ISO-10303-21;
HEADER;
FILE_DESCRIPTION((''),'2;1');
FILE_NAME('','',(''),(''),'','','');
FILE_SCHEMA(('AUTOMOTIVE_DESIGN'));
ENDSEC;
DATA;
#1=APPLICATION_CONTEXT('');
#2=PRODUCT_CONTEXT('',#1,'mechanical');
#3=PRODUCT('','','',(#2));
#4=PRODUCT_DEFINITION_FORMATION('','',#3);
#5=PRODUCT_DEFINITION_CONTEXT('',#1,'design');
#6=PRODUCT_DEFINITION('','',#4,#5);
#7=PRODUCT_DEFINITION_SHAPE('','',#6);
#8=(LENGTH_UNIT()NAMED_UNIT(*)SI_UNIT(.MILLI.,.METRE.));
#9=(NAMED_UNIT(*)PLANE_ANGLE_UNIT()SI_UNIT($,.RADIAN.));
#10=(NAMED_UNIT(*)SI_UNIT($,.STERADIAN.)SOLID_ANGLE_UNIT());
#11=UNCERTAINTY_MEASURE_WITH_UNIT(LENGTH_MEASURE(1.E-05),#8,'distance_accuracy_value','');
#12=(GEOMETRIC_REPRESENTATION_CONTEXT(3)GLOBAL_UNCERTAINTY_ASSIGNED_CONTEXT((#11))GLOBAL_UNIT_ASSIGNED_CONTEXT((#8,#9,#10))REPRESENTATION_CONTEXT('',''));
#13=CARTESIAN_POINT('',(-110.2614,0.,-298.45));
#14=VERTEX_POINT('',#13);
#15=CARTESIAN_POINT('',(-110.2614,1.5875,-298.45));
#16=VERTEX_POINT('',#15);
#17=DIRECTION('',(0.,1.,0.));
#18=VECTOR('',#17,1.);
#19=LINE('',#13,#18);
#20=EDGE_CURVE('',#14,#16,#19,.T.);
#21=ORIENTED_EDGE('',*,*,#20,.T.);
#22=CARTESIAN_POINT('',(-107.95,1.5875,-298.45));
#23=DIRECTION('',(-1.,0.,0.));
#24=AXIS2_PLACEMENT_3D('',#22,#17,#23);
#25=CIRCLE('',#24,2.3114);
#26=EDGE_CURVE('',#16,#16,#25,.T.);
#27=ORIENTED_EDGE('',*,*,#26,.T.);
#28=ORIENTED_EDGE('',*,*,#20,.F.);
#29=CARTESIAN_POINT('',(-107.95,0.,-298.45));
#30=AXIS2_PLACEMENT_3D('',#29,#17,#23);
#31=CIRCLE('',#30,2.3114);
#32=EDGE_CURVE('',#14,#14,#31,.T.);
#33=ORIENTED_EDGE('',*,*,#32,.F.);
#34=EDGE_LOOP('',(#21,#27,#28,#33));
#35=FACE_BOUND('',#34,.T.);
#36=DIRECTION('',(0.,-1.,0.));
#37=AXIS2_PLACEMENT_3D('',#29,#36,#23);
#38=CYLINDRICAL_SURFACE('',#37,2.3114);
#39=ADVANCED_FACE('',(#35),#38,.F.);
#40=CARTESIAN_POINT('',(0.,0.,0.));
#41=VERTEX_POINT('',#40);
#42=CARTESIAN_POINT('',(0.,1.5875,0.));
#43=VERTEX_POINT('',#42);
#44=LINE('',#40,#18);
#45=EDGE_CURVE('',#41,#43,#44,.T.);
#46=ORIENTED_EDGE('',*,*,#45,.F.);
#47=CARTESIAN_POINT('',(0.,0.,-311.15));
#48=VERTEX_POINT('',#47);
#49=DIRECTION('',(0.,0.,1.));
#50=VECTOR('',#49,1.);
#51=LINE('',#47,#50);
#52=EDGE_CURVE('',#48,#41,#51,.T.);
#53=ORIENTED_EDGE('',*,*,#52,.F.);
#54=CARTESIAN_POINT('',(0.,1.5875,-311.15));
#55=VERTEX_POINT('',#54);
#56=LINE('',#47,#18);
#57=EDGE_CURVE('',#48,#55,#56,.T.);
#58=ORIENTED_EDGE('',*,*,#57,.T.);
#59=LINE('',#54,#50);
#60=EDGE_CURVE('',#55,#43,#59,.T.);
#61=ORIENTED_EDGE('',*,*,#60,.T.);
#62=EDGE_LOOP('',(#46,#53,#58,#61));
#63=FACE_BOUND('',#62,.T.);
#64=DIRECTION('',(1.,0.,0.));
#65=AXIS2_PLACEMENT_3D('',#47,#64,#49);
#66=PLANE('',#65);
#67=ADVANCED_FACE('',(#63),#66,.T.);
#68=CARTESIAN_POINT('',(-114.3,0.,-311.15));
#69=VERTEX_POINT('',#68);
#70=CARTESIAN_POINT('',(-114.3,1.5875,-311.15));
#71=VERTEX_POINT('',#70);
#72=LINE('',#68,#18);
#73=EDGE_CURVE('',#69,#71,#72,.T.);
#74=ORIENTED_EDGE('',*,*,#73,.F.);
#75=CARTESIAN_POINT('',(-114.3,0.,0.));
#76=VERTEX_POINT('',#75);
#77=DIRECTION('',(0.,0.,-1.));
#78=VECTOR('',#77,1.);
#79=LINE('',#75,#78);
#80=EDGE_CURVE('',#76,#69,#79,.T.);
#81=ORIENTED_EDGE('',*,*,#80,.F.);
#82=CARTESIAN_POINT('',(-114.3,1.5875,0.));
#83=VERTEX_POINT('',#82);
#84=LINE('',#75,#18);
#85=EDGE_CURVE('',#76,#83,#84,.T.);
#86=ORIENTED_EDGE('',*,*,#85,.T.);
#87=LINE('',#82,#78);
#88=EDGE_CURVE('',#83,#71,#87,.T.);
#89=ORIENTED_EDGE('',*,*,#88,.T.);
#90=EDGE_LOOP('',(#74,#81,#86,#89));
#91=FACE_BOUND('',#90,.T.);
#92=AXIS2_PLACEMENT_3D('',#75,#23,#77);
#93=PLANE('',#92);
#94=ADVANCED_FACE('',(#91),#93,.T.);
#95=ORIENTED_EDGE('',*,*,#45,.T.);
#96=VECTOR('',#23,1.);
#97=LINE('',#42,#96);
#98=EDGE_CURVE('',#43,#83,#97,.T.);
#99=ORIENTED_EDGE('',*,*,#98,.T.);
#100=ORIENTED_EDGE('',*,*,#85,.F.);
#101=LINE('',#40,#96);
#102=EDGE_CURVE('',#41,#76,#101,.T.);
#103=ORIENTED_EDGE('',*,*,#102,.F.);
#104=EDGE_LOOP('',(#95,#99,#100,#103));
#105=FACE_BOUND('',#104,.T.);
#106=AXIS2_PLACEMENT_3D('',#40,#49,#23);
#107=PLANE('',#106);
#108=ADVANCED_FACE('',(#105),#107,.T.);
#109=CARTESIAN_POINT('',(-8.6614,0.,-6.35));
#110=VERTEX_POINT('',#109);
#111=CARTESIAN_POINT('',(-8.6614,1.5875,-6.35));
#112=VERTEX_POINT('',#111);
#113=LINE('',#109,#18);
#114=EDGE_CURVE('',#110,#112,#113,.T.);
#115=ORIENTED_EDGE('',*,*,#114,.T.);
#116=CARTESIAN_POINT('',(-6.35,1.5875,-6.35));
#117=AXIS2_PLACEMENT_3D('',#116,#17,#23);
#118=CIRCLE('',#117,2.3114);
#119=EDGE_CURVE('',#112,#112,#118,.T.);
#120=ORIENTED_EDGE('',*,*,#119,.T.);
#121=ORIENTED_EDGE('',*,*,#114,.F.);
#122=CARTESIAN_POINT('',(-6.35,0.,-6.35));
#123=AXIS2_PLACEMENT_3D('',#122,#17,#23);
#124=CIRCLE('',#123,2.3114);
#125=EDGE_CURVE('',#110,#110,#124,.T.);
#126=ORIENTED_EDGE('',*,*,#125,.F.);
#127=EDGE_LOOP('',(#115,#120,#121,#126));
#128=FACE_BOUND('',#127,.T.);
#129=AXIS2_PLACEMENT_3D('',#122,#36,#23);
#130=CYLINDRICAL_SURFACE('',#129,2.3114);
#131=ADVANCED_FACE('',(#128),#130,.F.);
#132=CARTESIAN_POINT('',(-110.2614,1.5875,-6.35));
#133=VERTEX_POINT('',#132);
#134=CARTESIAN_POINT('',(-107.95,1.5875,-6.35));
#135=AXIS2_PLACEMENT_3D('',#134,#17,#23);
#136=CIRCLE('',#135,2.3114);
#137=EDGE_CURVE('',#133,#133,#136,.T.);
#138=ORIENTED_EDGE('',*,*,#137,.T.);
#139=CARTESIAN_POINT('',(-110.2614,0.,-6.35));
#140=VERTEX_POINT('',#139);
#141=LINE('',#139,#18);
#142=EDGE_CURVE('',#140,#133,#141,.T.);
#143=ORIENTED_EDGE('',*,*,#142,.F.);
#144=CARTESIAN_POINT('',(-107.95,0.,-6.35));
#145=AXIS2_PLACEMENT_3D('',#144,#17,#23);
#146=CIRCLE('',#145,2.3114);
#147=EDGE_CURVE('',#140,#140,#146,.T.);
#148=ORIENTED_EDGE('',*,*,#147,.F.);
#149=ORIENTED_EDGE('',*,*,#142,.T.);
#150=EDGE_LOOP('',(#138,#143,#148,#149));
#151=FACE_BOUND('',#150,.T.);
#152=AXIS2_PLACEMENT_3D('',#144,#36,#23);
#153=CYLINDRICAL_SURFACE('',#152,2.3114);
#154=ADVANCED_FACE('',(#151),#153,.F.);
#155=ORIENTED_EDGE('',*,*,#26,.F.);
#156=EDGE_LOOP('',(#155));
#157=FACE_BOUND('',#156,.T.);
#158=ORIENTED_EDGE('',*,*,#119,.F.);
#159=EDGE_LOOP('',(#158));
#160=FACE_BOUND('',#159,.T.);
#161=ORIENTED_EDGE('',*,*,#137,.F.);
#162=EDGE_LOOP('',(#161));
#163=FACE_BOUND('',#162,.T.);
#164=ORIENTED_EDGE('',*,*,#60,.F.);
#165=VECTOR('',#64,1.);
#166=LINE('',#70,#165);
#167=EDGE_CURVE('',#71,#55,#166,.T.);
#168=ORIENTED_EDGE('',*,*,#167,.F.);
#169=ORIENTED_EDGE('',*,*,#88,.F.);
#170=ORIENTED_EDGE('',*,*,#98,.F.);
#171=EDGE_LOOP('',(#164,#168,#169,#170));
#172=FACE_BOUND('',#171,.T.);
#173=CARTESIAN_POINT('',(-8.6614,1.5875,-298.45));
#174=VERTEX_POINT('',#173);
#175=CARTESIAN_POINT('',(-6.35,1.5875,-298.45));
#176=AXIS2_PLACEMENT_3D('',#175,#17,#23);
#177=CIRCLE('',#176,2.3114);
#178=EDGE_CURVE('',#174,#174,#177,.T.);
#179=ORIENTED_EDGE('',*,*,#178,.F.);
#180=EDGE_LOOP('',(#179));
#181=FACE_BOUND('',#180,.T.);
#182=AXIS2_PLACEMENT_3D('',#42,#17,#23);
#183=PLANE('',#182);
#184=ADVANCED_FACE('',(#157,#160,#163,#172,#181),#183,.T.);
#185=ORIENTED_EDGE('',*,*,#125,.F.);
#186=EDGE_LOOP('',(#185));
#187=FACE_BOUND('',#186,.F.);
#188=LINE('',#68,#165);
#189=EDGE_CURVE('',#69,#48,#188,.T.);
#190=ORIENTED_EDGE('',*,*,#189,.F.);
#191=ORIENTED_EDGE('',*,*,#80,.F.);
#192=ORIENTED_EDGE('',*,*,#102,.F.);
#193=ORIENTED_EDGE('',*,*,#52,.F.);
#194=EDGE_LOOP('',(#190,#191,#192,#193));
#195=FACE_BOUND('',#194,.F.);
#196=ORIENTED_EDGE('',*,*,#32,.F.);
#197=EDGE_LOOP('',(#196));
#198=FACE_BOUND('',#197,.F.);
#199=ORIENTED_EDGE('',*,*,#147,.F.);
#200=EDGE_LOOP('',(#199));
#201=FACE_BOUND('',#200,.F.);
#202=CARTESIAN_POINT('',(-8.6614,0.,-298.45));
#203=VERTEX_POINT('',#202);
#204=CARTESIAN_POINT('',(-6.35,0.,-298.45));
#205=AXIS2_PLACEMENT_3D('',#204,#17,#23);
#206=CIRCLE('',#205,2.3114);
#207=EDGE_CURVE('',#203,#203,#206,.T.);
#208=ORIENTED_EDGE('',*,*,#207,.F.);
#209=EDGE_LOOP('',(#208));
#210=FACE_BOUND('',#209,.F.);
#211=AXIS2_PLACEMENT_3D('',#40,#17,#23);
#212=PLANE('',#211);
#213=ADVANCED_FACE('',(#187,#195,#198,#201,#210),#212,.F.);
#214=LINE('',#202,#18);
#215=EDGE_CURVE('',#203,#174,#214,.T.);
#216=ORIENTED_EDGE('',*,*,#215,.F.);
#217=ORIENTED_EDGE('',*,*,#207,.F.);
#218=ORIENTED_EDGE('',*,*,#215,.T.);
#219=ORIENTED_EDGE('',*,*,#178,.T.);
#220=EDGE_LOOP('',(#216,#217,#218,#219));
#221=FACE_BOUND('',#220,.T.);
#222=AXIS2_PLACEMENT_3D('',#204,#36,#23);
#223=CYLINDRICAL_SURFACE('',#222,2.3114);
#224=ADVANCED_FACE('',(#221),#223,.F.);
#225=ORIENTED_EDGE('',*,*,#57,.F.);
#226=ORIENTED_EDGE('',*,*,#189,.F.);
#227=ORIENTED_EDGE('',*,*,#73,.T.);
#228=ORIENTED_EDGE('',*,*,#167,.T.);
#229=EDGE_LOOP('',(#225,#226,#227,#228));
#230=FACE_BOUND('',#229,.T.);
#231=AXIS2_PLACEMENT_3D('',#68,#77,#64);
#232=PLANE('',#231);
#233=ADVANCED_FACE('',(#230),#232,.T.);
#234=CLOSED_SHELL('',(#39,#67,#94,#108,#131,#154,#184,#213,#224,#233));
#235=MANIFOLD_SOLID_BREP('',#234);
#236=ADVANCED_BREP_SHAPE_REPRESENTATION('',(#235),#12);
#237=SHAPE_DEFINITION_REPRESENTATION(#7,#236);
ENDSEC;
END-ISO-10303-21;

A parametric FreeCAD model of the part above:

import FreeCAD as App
import Part
import Sketcher
Q = App.Units.Quantity


def add_polygon(sketch, points):
    """Adds a closed chain of lines whose ends are joined by coincident constraints."""
    first, n = sketch.GeometryCount, len(points)
    for a, b in zip(points, points[1:] + points[:1]):
        sketch.addGeometry(Part.LineSegment(App.Vector(*a, 0), App.Vector(*b, 0)), False)
    for i in range(n):
        sketch.addConstraint(Sketcher.Constraint("Coincident", first + i, 2, first + (i + 1) % n, 1))

doc = App.newDocument("Part")
body = doc.addObject("PartDesign::Body", "Body")

# Sketch on XZ plane
sketch1 = body.newObject("Sketcher::SketchObject", "Sketch")
sketch1.AttachmentSupport = (doc.getObject("XZ_Plane"), [""])
sketch1.MapMode = "FlatFace"
add_polygon(sketch1, [(-114.3, 0), (0, 0), (0, -311.1), (-114.3, -311.1)])  # lines 0-3
sketch1.addGeometry(Part.Circle(App.Vector(-6.3, -298.4, 0), App.Vector(0, 0, 1), 2.3), False)  # 4
sketch1.addGeometry(Part.Circle(App.Vector(-108, -298.4, 0), App.Vector(0, 0, 1), 2.3), False)  # 5
sketch1.addGeometry(Part.Circle(App.Vector(-6.3, -6.3, 0), App.Vector(0, 0, 1), 2.3), False)  # 6
sketch1.addGeometry(Part.Circle(App.Vector(-108, -6.3, 0), App.Vector(0, 0, 1), 2.3), False)  # 7
sketch1.addConstraint([
    Sketcher.Constraint("Horizontal", 0),
    Sketcher.Constraint("Vertical", 1),
    Sketcher.Constraint("Horizontal", 2),
    Sketcher.Constraint("Vertical", 3),
    Sketcher.Constraint("Coincident", 0, 2, -1, 1),
    Sketcher.Constraint("Equal", 4, 5),
    Sketcher.Constraint("Equal", 5, 6),
    Sketcher.Constraint("Equal", 6, 7),
    Sketcher.Constraint("Horizontal", 4, 3, 5, 3),
    Sketcher.Constraint("Horizontal", 6, 3, 7, 3),
    Sketcher.Constraint("Vertical", 4, 3, 6, 3),
    Sketcher.Constraint("Vertical", 5, 3, 7, 3),
    Sketcher.Constraint("Diameter", 4, Q("0.182 in")),
    Sketcher.Constraint("DistanceX", 0, 1, 0, 2, Q("4.5 in")),
    Sketcher.Constraint("DistanceY", 1, 2, 1, 1, Q("12.25 in")),
    Sketcher.Constraint("DistanceY", 4, 3, 6, 3, Q("11.5 in")),
    Sketcher.Constraint("DistanceX", 4, 3, -1, 1, Q("0.25 in")),
    Sketcher.Constraint("DistanceY", 6, 3, -1, 1, Q("0.25 in")),
    Sketcher.Constraint("DistanceX", 2, 2, 5, 3, Q("0.25 in")),
])
pad1 = body.newObject("PartDesign::Pad", "Pad")
pad1.Profile = sketch1
pad1.Length = Q("0.0625 in")
pad1.Reversed = True

doc.recompute()
